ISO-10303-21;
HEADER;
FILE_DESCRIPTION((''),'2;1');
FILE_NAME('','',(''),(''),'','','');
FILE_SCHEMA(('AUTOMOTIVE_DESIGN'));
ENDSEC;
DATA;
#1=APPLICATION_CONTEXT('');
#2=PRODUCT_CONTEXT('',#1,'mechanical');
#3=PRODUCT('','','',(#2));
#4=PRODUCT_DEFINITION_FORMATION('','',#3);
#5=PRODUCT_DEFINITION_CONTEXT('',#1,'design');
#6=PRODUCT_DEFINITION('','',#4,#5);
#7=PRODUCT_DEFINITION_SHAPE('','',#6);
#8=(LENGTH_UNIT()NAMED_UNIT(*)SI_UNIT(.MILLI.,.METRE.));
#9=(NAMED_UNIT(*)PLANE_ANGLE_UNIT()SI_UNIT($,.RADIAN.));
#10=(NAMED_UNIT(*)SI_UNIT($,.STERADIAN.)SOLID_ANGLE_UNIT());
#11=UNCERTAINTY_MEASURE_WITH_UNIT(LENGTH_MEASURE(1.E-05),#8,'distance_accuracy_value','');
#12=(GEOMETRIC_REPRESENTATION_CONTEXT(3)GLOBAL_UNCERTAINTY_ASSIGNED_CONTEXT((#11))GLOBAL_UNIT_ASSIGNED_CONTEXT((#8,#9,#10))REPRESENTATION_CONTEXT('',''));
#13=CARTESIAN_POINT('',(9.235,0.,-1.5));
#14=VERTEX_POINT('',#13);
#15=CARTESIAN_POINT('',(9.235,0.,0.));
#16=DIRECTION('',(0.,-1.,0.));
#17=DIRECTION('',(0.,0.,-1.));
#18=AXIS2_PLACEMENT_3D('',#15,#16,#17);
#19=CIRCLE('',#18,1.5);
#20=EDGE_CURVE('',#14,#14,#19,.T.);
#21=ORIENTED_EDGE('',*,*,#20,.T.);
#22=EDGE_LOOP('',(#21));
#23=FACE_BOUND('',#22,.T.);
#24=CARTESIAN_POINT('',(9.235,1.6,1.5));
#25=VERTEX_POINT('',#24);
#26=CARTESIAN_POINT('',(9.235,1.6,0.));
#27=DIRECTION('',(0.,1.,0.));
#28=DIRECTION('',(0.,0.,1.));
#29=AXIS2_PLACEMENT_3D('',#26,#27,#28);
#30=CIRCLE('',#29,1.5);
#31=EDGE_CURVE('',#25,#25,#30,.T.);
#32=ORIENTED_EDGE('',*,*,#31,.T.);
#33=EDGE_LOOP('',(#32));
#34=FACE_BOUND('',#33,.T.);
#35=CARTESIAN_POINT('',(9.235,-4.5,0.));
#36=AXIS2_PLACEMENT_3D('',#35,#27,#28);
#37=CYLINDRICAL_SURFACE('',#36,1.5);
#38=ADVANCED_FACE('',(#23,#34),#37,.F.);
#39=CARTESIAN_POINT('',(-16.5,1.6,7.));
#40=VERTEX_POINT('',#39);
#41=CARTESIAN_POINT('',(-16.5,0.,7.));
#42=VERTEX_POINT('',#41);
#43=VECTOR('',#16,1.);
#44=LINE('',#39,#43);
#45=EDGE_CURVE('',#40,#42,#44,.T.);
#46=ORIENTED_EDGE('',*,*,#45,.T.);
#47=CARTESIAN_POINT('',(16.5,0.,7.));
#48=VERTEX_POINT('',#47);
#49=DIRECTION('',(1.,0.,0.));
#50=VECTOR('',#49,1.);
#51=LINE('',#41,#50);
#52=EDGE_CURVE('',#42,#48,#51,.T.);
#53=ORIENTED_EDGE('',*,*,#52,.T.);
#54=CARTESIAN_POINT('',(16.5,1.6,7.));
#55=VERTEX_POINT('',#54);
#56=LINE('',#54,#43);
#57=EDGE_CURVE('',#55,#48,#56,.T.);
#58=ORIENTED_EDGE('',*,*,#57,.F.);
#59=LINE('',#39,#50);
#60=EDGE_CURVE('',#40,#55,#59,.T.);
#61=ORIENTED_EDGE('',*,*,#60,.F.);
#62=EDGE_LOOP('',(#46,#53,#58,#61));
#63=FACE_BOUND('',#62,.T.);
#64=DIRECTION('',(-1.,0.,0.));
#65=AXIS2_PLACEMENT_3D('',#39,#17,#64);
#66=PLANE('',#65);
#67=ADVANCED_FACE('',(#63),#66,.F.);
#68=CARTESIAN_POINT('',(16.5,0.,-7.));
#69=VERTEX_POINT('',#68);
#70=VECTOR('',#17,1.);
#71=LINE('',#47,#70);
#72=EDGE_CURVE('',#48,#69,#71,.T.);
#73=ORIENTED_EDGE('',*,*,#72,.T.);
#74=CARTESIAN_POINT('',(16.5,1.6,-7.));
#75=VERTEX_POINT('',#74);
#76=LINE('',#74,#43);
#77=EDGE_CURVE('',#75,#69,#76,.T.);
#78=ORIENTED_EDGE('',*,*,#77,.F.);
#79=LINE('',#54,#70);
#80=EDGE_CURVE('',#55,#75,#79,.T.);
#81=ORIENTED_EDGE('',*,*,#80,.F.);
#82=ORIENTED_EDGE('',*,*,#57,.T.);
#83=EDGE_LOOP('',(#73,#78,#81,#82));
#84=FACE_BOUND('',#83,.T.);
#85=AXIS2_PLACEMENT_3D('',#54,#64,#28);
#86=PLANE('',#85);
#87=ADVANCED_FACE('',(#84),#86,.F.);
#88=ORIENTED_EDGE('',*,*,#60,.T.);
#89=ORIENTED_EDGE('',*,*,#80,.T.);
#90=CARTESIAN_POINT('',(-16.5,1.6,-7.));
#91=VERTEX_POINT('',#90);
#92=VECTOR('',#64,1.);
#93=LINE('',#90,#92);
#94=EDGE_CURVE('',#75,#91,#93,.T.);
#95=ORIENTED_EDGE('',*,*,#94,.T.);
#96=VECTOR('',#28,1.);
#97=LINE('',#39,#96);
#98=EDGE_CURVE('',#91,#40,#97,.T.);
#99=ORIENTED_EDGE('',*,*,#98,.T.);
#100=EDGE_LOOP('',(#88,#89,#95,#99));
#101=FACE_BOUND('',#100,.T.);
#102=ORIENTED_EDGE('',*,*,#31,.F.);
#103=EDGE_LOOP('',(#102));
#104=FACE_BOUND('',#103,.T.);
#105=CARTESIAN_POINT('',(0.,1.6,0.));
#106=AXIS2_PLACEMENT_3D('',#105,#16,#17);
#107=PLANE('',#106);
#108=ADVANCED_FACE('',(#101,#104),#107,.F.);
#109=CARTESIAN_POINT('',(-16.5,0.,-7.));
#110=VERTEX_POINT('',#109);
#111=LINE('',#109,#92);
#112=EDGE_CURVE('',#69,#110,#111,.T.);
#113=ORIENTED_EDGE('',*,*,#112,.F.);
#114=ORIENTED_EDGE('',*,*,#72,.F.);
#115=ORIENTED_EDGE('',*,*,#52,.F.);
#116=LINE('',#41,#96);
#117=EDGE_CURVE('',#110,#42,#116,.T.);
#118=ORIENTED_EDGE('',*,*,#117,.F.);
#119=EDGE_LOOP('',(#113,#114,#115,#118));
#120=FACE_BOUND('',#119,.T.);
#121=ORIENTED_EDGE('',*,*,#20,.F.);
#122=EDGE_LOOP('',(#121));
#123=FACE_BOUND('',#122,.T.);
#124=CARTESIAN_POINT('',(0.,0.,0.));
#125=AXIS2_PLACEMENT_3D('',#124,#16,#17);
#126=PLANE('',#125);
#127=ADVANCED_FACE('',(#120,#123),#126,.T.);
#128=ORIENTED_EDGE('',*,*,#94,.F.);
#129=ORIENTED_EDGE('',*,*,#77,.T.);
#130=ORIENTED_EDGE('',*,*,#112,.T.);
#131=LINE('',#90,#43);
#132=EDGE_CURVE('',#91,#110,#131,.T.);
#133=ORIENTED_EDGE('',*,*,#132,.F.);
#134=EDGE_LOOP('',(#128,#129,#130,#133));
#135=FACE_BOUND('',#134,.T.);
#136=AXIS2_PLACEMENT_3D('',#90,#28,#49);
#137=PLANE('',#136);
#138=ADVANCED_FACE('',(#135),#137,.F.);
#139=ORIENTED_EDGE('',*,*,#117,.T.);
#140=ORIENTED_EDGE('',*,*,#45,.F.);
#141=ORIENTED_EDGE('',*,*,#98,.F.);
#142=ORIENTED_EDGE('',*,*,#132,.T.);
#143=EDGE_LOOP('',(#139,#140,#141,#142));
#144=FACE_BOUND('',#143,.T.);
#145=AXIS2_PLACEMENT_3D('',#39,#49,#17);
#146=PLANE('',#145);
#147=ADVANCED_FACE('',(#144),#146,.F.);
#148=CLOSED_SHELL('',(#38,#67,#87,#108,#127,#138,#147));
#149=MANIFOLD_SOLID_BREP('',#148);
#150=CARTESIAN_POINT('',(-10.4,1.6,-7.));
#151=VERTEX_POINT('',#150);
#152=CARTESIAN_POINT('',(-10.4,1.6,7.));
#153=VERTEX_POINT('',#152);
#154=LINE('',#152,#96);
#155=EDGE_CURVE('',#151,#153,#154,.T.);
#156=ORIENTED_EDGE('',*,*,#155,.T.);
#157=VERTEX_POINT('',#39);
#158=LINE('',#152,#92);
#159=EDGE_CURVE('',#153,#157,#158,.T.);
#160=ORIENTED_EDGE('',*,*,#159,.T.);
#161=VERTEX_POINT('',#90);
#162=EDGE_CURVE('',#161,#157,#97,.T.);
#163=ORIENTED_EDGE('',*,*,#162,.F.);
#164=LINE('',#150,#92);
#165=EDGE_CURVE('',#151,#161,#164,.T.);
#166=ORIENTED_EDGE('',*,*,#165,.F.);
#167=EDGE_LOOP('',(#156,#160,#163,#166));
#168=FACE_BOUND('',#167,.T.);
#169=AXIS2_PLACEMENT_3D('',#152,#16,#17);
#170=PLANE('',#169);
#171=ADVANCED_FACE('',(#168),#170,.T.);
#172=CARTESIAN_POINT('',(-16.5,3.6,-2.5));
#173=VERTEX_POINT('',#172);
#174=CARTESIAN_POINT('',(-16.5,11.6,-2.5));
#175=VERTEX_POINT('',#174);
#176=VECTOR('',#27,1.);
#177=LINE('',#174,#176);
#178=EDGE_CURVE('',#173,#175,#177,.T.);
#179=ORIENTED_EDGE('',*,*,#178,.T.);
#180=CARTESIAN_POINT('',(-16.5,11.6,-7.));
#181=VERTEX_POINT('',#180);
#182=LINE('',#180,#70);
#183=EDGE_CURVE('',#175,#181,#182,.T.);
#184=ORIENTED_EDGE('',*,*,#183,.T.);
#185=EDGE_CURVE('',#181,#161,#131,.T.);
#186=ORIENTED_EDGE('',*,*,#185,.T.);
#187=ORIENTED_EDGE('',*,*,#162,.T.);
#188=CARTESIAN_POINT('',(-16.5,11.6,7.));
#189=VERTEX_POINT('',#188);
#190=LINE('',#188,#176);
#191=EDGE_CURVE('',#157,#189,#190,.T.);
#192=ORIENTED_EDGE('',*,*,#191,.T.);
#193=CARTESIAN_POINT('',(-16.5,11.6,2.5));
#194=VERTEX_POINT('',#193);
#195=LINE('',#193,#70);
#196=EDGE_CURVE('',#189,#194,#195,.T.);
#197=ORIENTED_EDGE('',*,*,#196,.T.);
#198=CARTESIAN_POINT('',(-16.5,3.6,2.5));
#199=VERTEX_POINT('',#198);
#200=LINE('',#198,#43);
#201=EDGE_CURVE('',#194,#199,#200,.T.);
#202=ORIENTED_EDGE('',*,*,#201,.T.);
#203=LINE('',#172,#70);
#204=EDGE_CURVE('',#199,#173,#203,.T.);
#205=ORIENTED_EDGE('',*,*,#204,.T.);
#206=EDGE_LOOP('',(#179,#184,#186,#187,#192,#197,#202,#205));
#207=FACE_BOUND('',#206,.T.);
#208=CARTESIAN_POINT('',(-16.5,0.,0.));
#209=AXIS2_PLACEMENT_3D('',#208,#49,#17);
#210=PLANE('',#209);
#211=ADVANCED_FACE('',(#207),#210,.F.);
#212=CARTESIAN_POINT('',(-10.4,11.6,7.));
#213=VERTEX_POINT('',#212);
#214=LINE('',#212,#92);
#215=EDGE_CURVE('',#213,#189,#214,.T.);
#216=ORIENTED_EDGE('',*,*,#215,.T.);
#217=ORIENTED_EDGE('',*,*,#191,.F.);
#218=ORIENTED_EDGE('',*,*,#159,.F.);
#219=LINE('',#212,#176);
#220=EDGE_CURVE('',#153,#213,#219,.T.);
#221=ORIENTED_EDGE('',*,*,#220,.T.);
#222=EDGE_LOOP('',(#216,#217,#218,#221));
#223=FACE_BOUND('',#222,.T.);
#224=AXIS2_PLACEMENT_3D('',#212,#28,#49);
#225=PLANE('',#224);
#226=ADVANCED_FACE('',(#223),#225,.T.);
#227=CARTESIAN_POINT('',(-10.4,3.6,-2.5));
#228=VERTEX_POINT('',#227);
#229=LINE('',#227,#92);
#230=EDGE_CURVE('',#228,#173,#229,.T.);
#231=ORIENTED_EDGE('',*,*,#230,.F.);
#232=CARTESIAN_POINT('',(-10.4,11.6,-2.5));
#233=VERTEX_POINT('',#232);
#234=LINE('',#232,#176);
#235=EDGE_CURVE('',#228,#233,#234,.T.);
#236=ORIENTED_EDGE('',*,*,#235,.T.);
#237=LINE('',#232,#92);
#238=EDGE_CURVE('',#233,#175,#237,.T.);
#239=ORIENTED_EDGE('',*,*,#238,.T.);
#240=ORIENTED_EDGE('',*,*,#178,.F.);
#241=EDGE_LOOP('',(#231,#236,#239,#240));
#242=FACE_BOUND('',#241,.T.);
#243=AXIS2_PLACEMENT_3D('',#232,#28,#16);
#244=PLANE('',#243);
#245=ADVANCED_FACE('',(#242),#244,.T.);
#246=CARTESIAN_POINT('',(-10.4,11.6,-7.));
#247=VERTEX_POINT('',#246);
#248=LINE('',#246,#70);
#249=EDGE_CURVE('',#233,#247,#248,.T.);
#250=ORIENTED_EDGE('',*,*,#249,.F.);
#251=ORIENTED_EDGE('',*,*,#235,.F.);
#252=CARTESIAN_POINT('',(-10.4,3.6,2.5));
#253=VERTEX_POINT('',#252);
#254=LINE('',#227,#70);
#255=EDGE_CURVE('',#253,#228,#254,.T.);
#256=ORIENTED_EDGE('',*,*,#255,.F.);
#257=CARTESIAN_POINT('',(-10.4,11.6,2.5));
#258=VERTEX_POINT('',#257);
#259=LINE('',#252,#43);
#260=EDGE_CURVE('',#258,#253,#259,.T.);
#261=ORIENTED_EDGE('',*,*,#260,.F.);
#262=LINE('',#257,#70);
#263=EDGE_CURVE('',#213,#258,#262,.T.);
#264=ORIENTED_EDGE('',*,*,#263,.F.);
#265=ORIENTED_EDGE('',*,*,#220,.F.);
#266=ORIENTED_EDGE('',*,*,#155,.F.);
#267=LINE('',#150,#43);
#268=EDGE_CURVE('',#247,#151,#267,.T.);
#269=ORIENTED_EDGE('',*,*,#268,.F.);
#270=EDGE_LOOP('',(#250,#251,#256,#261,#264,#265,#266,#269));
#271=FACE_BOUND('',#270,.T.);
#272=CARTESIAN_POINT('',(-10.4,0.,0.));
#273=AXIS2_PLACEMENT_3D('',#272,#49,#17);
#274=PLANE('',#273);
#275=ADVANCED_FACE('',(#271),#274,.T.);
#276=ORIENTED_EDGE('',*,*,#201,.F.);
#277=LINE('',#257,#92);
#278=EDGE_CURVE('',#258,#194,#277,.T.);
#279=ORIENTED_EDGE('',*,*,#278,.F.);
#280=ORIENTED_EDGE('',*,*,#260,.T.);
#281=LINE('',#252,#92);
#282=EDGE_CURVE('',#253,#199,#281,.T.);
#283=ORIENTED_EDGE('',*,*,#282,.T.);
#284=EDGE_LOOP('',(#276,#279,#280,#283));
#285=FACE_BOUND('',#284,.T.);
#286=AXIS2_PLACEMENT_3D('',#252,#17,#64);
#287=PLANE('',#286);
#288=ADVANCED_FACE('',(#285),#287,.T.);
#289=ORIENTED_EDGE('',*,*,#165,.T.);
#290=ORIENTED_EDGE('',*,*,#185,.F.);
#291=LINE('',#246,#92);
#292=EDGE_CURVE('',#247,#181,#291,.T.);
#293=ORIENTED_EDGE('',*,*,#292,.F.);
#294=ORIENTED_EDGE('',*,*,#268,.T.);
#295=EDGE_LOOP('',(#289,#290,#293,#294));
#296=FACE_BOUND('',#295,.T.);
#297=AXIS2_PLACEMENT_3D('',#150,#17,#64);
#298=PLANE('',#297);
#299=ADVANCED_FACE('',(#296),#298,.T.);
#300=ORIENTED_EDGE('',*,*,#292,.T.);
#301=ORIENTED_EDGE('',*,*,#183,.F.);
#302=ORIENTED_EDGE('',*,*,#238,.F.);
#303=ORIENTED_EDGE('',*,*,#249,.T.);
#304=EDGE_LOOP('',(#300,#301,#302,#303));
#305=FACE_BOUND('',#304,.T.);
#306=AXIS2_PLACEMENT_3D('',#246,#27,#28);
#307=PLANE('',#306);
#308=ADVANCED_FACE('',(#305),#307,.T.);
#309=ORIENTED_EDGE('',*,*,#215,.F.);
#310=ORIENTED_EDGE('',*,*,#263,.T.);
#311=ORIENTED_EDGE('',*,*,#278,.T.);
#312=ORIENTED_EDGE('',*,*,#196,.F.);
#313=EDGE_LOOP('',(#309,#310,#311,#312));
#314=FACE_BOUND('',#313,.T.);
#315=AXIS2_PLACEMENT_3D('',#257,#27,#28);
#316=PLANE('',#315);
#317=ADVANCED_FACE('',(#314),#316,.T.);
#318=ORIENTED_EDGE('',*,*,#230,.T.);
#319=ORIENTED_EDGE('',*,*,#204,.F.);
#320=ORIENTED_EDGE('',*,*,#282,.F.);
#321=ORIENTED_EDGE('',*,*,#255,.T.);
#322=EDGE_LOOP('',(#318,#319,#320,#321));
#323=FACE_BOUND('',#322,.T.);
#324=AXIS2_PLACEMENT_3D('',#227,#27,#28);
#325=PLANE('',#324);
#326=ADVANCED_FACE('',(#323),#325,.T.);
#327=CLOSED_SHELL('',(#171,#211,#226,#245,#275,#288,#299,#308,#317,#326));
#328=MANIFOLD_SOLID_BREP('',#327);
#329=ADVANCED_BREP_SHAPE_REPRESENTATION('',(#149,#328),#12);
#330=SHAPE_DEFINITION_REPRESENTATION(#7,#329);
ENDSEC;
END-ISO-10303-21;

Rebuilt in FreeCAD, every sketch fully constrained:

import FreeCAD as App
import Part
import Sketcher
Q = App.Units.Quantity

doc = App.newDocument("Part")
body = doc.addObject("PartDesign::Body", "Body")

# Sketch on XZ plane
sketch1 = body.newObject("Sketcher::SketchObject", "Sketch")
sketch1.AttachmentSupport = (doc.getObject("XZ_Plane"), [""])
sketch1.MapMode = "FlatFace"
sketch1.addGeometry([
    Part.LineSegment(App.Vector(-16, -7, 0), App.Vector(-16, 7, 0)),
    Part.LineSegment(App.Vector(-16, 7, 0), App.Vector(16, 7, 0)),
    Part.LineSegment(App.Vector(16, 7, 0), App.Vector(16, -7, 0)),
    Part.LineSegment(App.Vector(16, -7, 0), App.Vector(-16, -7, 0)),
], False)
sketch1.addConstraint([
    Sketcher.Constraint("Coincident", 0, 2, 1, 1),
    Sketcher.Constraint("Coincident", 1, 2, 2, 1),
    Sketcher.Constraint("Coincident", 2, 2, 3, 1),
    Sketcher.Constraint("Coincident", 3, 2, 0, 1),
    Sketcher.Constraint("Vertical", 0),
    Sketcher.Constraint("Horizontal", 1),
    Sketcher.Constraint("Vertical", 2),
    Sketcher.Constraint("Horizontal", 3),
    Sketcher.Constraint("Symmetric", 0, 2, 2, 2, -1, 1),
    Sketcher.Constraint("DistanceX", 1, 1, 1, 2, Q("33 mm")),
    Sketcher.Constraint("DistanceY", 0, 1, 0, 2, Q("14 mm")),
])
pad1 = body.newObject("PartDesign::Pad", "Pad")
pad1.Profile = sketch1
pad1.Length = 1.6
pad1.Reversed = True

# Sketch on XZ plane
sketch2 = body.newObject("Sketcher::SketchObject", "Sketch001")
sketch2.AttachmentSupport = (doc.getObject("XZ_Plane"), [""])
sketch2.MapMode = "FlatFace"
sketch2.AttachmentOffset = App.Placement(App.Vector(0, 0, -1.6), App.Rotation())
sketch2.addGeometry(Part.Circle(App.Vector(9.2, 0, 0), App.Vector(0, 0, 1), 1.5), False)
sketch2.addConstraint([
    Sketcher.Constraint("PointOnObject", 0, 3, -1),
    Sketcher.Constraint("Diameter", 0, Q("3 mm")),
    Sketcher.Constraint("DistanceX", -1, 1, 0, 3, Q("9.235 mm")),
])
pocket1 = body.newObject("PartDesign::Pocket", "Pocket")
pocket1.Profile = sketch2
pocket1.Length = 6.1
pocket1.Reversed = True
body2 = doc.addObject("PartDesign::Body", "Body001")

# Sketch on YZ plane
sketch3 = body2.newObject("Sketcher::SketchObject", "Sketch002")
sketch3.AttachmentSupport = (doc.getObject("YZ_Plane001"), [""])
sketch3.MapMode = "FlatFace"
sketch3.AttachmentOffset = App.Placement(App.Vector(0, 0, -16.5), App.Rotation())
sketch3.addGeometry([
    Part.LineSegment(App.Vector(11.6, -7, 0), App.Vector(1.6, -7, 0)),  # 0
    Part.LineSegment(App.Vector(1.6, -7, 0), App.Vector(1.6, 7, 0)),  # 1
    Part.LineSegment(App.Vector(1.6, 7, 0), App.Vector(11.6, 7, 0)),  # 2
    Part.LineSegment(App.Vector(11.6, 7, 0), App.Vector(11.6, 2.5, 0)),  # 3
    Part.LineSegment(App.Vector(11.6, 2.5, 0), App.Vector(3.6, 2.5, 0)),  # 4
    Part.LineSegment(App.Vector(3.6, 2.5, 0), App.Vector(3.6, -2.5, 0)),  # 5
    Part.LineSegment(App.Vector(3.6, -2.5, 0), App.Vector(11.6, -2.5, 0)),  # 6
    Part.LineSegment(App.Vector(11.6, -2.5, 0), App.Vector(11.6, -7, 0)),  # 7
], False)
sketch3.addConstraint([
    Sketcher.Constraint("Coincident", 0, 2, 1, 1),
    Sketcher.Constraint("Coincident", 1, 2, 2, 1),
    Sketcher.Constraint("Coincident", 2, 2, 3, 1),
    Sketcher.Constraint("Coincident", 3, 2, 4, 1),
    Sketcher.Constraint("Coincident", 4, 2, 5, 1),
    Sketcher.Constraint("Coincident", 5, 2, 6, 1),
    Sketcher.Constraint("Coincident", 6, 2, 7, 1),
    Sketcher.Constraint("Coincident", 7, 2, 0, 1),
    Sketcher.Constraint("Horizontal", 0),
    Sketcher.Constraint("Vertical", 1),
    Sketcher.Constraint("Horizontal", 2),
    Sketcher.Constraint("Vertical", 3),
    Sketcher.Constraint("Horizontal", 4),
    Sketcher.Constraint("Vertical", 5),
    Sketcher.Constraint("Horizontal", 6),
    Sketcher.Constraint("Vertical", 7),
    Sketcher.Constraint("Symmetric", 3, 2, 6, 2, -1),
    Sketcher.Constraint("Equal", 3, 7),
    Sketcher.Constraint("DistanceX", 0, 2, 0, 1, Q("10 mm")),
    Sketcher.Constraint("DistanceX", 4, 2, 4, 1, Q("8 mm")),
    Sketcher.Constraint("DistanceY", 1, 1, 1, 2, Q("14 mm")),
    Sketcher.Constraint("DistanceY", 5, 2, 5, 1, Q("5 mm")),
    Sketcher.Constraint("DistanceX", -1, 1, 0, 2, Q("1.6 mm")),
])
pad2 = body2.newObject("PartDesign::Pad", "Pad001")
pad2.Profile = sketch3
pad2.Length = 6.1

doc.recompute()
